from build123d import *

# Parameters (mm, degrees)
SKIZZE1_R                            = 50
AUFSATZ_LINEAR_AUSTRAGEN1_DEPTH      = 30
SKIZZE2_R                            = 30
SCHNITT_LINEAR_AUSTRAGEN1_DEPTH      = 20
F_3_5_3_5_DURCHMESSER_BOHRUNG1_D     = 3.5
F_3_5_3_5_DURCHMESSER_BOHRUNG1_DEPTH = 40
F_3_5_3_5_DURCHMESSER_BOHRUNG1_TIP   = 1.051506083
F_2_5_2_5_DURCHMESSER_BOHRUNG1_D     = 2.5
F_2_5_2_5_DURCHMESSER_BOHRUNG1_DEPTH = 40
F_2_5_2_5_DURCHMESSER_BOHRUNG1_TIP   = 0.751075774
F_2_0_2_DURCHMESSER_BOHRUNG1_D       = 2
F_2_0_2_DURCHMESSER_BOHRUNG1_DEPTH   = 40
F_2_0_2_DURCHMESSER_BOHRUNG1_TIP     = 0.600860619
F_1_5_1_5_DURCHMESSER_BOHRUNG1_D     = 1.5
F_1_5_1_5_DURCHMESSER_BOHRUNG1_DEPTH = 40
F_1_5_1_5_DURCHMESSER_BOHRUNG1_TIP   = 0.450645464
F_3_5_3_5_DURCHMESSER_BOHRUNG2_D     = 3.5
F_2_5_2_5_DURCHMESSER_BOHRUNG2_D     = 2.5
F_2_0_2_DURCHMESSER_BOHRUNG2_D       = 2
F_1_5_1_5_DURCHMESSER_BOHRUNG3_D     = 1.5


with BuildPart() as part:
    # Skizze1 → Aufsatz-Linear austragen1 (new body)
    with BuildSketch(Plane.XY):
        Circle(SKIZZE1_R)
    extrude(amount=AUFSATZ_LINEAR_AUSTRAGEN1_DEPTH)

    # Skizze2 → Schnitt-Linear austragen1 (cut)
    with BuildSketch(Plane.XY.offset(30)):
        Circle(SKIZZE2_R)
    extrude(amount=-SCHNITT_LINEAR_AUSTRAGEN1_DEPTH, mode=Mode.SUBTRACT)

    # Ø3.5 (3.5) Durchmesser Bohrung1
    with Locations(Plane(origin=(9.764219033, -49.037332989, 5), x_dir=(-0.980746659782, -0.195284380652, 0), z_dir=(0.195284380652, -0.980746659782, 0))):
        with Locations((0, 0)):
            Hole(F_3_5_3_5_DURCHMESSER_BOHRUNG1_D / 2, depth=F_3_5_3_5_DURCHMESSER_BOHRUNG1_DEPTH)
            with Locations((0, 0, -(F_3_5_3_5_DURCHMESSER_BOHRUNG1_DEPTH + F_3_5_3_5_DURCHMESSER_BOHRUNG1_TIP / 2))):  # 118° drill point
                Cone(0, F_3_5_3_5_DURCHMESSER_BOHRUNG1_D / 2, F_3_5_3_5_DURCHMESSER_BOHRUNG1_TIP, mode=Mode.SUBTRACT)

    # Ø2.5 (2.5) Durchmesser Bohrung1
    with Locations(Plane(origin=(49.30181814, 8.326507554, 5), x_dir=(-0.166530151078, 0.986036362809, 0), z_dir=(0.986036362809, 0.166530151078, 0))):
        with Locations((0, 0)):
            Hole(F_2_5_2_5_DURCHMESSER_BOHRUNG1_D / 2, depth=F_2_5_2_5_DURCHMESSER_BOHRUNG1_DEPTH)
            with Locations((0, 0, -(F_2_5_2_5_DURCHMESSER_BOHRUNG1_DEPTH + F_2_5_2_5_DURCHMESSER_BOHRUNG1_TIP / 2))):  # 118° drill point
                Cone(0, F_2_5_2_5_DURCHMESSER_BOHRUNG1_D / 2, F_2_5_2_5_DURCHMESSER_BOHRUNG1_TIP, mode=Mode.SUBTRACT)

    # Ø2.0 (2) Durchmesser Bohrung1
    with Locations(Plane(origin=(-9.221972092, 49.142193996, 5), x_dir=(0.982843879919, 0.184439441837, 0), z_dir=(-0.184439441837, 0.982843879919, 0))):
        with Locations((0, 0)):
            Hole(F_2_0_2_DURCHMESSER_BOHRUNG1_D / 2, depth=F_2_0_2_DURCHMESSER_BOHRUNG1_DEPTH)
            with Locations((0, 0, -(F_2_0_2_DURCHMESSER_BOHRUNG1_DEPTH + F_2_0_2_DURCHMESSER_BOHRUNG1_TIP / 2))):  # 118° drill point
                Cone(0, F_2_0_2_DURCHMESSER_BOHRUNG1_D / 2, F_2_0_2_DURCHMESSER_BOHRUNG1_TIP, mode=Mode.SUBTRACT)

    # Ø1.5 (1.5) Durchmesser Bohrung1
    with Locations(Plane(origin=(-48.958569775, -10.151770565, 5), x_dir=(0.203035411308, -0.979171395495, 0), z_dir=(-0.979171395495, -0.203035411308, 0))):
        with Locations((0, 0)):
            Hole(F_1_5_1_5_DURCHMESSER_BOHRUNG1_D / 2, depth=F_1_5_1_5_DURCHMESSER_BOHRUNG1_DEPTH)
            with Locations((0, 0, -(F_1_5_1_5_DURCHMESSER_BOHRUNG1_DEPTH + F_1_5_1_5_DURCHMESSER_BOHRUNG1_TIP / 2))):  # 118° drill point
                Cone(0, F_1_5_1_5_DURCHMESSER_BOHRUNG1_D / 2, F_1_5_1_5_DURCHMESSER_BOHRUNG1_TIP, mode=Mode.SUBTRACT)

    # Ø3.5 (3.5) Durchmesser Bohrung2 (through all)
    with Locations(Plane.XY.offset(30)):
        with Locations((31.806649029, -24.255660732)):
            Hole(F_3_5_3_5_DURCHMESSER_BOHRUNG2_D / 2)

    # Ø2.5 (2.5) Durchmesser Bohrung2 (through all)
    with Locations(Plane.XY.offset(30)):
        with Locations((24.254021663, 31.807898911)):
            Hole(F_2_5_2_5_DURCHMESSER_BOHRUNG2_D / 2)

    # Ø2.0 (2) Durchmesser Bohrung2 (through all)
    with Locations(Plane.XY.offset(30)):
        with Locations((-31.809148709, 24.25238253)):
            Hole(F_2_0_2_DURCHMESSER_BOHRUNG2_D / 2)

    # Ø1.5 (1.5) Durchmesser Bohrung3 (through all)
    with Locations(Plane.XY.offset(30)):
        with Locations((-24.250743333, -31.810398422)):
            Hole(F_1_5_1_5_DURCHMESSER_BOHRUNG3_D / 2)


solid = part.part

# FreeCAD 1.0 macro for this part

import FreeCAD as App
import Part
import Sketcher

doc = App.newDocument("Part")
body = doc.addObject("PartDesign::Body", "Body")

# Sketch on XY plane
sketch1 = body.newObject("Sketcher::SketchObject", "Sketch")
sketch1.AttachmentSupport = (doc.getObject("XY_Plane"), [""])
sketch1.MapMode = "FlatFace"
sketch1.addGeometry(Part.Circle(App.Vector(0, 0, 0), App.Vector(0, 0, 1), 50), False)
sketch1.addConstraint(Sketcher.Constraint("Coincident", 0, 3, -1, 1))
sketch1.addConstraint(Sketcher.Constraint("Diameter", 0, 100.0))
pad1 = body.newObject("PartDesign::Pad", "Pad")
pad1.Profile = sketch1
pad1.Length = 30

# Sketch on XY plane
sketch2 = body.newObject("Sketcher::SketchObject", "Sketch001")
sketch2.AttachmentSupport = (doc.getObject("XY_Plane"), [""])
sketch2.MapMode = "FlatFace"
sketch2.AttachmentOffset = App.Placement(App.Vector(0, 0, 30), App.Rotation())
sketch2.addGeometry(Part.Circle(App.Vector(0, 0, 0), App.Vector(0, 0, 1), 30), False)
sketch2.addConstraint(Sketcher.Constraint("Coincident", 0, 3, -1, 1))
sketch2.addConstraint(Sketcher.Constraint("Diameter", 0, 60.0))
pocket1 = body.newObject("PartDesign::Pocket", "Pocket")
pocket1.Profile = sketch2
pocket1.Length = 20

# Sketch on an angled plane
sketch3 = body.newObject("Sketcher::SketchObject", "Sketch002")
sketch3.Placement = App.Placement(App.Vector(9.764219, -49.037333, 0), App.Rotation(App.Vector(-0.98074666, -0.195284381, 0), App.Vector(0, 0, -1.000000001), App.Vector(0.195284381, -0.98074666, 0), "ZXY"))
sketch3.addGeometry(Part.Circle(App.Vector(0, -5, 0), App.Vector(0, 0, 1), 1.8), False)
sketch3.addConstraint(Sketcher.Constraint("PointOnObject", 0, 3, -2))
sketch3.addConstraint(Sketcher.Constraint("Diameter", 0, 3.5))
sketch3.addConstraint(Sketcher.Constraint("DistanceY", 0, 3, -1, 1, 5.0))
doc.recompute()
hole = body.newObject("PartDesign::Hole", "Hole")
hole.Profile = sketch3
hole.ThreadType = "None"
hole.Diameter = 3.5
hole.DepthType = "Dimension"
hole.Depth = 40
hole.DrillPoint = "Angled"
hole.DrillPointAngle = 118

# Sketch on an angled plane
sketch4 = body.newObject("Sketcher::SketchObject", "Sketch003")
sketch4.Placement = App.Placement(App.Vector(49.301818, 8.326508, 0), App.Rotation(App.Vector(-0.166530151, 0.986036363, 0), App.Vector(0, 0, 1), App.Vector(0.986036363, 0.166530151, 0), "ZXY"))
sketch4.addGeometry(Part.Circle(App.Vector(0, 5, 0), App.Vector(0, 0, 1), 1.2), False)
sketch4.addConstraint(Sketcher.Constraint("PointOnObject", 0, 3, -2))
sketch4.addConstraint(Sketcher.Constraint("Diameter", 0, 2.5))
sketch4.addConstraint(Sketcher.Constraint("DistanceY", -1, 1, 0, 3, 5.0))
doc.recompute()
hole2 = body.newObject("PartDesign::Hole", "Hole001")
hole2.Profile = sketch4
hole2.ThreadType = "None"
hole2.Diameter = 2.5
hole2.DepthType = "Dimension"
hole2.Depth = 40
hole2.DrillPoint = "Angled"
hole2.DrillPointAngle = 118

# Sketch on an angled plane
sketch5 = body.newObject("Sketcher::SketchObject", "Sketch004")
sketch5.Placement = App.Placement(App.Vector(-9.221972, 49.142194, 0), App.Rotation(App.Vector(0.98284388, 0.184439442, 0), App.Vector(0, 0, -1), App.Vector(-0.184439442, 0.98284388, 0), "ZXY"))
sketch5.addGeometry(Part.Circle(App.Vector(0, -5, 0), App.Vector(0, 0, 1), 1), False)
sketch5.addConstraint(Sketcher.Constraint("PointOnObject", 0, 3, -2))
sketch5.addConstraint(Sketcher.Constraint("Diameter", 0, 2.0))
sketch5.addConstraint(Sketcher.Constraint("DistanceY", 0, 3, -1, 1, 5.0))
doc.recompute()
hole3 = body.newObject("PartDesign::Hole", "Hole002")
hole3.Profile = sketch5
hole3.ThreadType = "None"
hole3.Diameter = 2
hole3.DepthType = "Dimension"
hole3.Depth = 40
hole3.DrillPoint = "Angled"
hole3.DrillPointAngle = 118

# Sketch on an angled plane
sketch6 = body.newObject("Sketcher::SketchObject", "Sketch005")
sketch6.Placement = App.Placement(App.Vector(-48.95857, -10.151771, 0), App.Rotation(App.Vector(0.203035411, -0.979171395, 0), App.Vector(0, 0, 0.999999999), App.Vector(-0.979171395, -0.203035411, 0), "ZXY"))
sketch6.addGeometry(Part.Circle(App.Vector(0, 5, 0), App.Vector(0, 0, 1), 0.8), False)
sketch6.addConstraint(Sketcher.Constraint("PointOnObject", 0, 3, -2))
sketch6.addConstraint(Sketcher.Constraint("Diameter", 0, 1.5))
sketch6.addConstraint(Sketcher.Constraint("DistanceY", -1, 1, 0, 3, 5.0))
doc.recompute()
hole4 = body.newObject("PartDesign::Hole", "Hole003")
hole4.Profile = sketch6
hole4.ThreadType = "None"
hole4.Diameter = 1.5
hole4.DepthType = "Dimension"
hole4.Depth = 40
hole4.DrillPoint = "Angled"
hole4.DrillPointAngle = 118

# Sketch on XY plane
sketch7 = body.newObject("Sketcher::SketchObject", "Sketch006")
sketch7.AttachmentSupport = (doc.getObject("XY_Plane"), [""])
sketch7.MapMode = "FlatFace"
sketch7.AttachmentOffset = App.Placement(App.Vector(0, 0, 30), App.Rotation())
sketch7.addGeometry(Part.Circle(App.Vector(31.8, -24.3, 0), App.Vector(0, 0, 1), 1.8), False)
sketch7.addConstraint(Sketcher.Constraint("Diameter", 0, 3.5))
sketch7.addConstraint(Sketcher.Constraint("DistanceX", -1, 1, 0, 3, 31.806649))
sketch7.addConstraint(Sketcher.Constraint("DistanceY", 0, 3, -1, 1, 24.255661))
doc.recompute()
hole5 = body.newObject("PartDesign::Hole", "Hole004")
hole5.Profile = sketch7
hole5.ThreadType = "None"
hole5.Diameter = 3.5
hole5.DepthType = "ThroughAll"

# Sketch on XY plane
sketch8 = body.newObject("Sketcher::SketchObject", "Sketch007")
sketch8.AttachmentSupport = (doc.getObject("XY_Plane"), [""])
sketch8.MapMode = "FlatFace"
sketch8.AttachmentOffset = App.Placement(App.Vector(0, 0, 30), App.Rotation())
sketch8.addGeometry(Part.Circle(App.Vector(24.3, 31.8, 0), App.Vector(0, 0, 1), 1.2), False)
sketch8.addConstraint(Sketcher.Constraint("Diameter", 0, 2.5))
sketch8.addConstraint(Sketcher.Constraint("DistanceY", -1, 1, 0, 3, 31.807899))
sketch8.addConstraint(Sketcher.Constraint("DistanceX", -1, 1, 0, 3, 24.254022))
doc.recompute()
hole6 = body.newObject("PartDesign::Hole", "Hole005")
hole6.Profile = sketch8
hole6.ThreadType = "None"
hole6.Diameter = 2.5
hole6.DepthType = "ThroughAll"

# Sketch on XY plane
sketch9 = body.newObject("Sketcher::SketchObject", "Sketch008")
sketch9.AttachmentSupport = (doc.getObject("XY_Plane"), [""])
sketch9.MapMode = "FlatFace"
sketch9.AttachmentOffset = App.Placement(App.Vector(0, 0, 30), App.Rotation())
sketch9.addGeometry(Part.Circle(App.Vector(-31.8, 24.3, 0), App.Vector(0, 0, 1), 1), False)
sketch9.addConstraint(Sketcher.Constraint("Diameter", 0, 2.0))
sketch9.addConstraint(Sketcher.Constraint("DistanceX", 0, 3, -1, 1, 31.809149))
sketch9.addConstraint(Sketcher.Constraint("DistanceY", -1, 1, 0, 3, 24.252383))
doc.recompute()
hole7 = body.newObject("PartDesign::Hole", "Hole006")
hole7.Profile = sketch9
hole7.ThreadType = "None"
hole7.Diameter = 2
hole7.DepthType = "ThroughAll"

# Sketch on XY plane
sketch10 = body.newObject("Sketcher::SketchObject", "Sketch009")
sketch10.AttachmentSupport = (doc.getObject("XY_Plane"), [""])
sketch10.MapMode = "FlatFace"
sketch10.AttachmentOffset = App.Placement(App.Vector(0, 0, 30), App.Rotation())
sketch10.addGeometry(Part.Circle(App.Vector(-24.3, -31.8, 0), App.Vector(0, 0, 1), 0.8), False)
sketch10.addConstraint(Sketcher.Constraint("Diameter", 0, 1.5))
sketch10.addConstraint(Sketcher.Constraint("DistanceY", 0, 3, -1, 1, 31.810398))
sketch10.addConstraint(Sketcher.Constraint("DistanceX", 0, 3, -1, 1, 24.250743))
doc.recompute()
hole8 = body.newObject("PartDesign::Hole", "Hole007")
hole8.Profile = sketch10
hole8.ThreadType = "None"
hole8.Diameter = 1.5
hole8.DepthType = "ThroughAll"

doc.recompute()
